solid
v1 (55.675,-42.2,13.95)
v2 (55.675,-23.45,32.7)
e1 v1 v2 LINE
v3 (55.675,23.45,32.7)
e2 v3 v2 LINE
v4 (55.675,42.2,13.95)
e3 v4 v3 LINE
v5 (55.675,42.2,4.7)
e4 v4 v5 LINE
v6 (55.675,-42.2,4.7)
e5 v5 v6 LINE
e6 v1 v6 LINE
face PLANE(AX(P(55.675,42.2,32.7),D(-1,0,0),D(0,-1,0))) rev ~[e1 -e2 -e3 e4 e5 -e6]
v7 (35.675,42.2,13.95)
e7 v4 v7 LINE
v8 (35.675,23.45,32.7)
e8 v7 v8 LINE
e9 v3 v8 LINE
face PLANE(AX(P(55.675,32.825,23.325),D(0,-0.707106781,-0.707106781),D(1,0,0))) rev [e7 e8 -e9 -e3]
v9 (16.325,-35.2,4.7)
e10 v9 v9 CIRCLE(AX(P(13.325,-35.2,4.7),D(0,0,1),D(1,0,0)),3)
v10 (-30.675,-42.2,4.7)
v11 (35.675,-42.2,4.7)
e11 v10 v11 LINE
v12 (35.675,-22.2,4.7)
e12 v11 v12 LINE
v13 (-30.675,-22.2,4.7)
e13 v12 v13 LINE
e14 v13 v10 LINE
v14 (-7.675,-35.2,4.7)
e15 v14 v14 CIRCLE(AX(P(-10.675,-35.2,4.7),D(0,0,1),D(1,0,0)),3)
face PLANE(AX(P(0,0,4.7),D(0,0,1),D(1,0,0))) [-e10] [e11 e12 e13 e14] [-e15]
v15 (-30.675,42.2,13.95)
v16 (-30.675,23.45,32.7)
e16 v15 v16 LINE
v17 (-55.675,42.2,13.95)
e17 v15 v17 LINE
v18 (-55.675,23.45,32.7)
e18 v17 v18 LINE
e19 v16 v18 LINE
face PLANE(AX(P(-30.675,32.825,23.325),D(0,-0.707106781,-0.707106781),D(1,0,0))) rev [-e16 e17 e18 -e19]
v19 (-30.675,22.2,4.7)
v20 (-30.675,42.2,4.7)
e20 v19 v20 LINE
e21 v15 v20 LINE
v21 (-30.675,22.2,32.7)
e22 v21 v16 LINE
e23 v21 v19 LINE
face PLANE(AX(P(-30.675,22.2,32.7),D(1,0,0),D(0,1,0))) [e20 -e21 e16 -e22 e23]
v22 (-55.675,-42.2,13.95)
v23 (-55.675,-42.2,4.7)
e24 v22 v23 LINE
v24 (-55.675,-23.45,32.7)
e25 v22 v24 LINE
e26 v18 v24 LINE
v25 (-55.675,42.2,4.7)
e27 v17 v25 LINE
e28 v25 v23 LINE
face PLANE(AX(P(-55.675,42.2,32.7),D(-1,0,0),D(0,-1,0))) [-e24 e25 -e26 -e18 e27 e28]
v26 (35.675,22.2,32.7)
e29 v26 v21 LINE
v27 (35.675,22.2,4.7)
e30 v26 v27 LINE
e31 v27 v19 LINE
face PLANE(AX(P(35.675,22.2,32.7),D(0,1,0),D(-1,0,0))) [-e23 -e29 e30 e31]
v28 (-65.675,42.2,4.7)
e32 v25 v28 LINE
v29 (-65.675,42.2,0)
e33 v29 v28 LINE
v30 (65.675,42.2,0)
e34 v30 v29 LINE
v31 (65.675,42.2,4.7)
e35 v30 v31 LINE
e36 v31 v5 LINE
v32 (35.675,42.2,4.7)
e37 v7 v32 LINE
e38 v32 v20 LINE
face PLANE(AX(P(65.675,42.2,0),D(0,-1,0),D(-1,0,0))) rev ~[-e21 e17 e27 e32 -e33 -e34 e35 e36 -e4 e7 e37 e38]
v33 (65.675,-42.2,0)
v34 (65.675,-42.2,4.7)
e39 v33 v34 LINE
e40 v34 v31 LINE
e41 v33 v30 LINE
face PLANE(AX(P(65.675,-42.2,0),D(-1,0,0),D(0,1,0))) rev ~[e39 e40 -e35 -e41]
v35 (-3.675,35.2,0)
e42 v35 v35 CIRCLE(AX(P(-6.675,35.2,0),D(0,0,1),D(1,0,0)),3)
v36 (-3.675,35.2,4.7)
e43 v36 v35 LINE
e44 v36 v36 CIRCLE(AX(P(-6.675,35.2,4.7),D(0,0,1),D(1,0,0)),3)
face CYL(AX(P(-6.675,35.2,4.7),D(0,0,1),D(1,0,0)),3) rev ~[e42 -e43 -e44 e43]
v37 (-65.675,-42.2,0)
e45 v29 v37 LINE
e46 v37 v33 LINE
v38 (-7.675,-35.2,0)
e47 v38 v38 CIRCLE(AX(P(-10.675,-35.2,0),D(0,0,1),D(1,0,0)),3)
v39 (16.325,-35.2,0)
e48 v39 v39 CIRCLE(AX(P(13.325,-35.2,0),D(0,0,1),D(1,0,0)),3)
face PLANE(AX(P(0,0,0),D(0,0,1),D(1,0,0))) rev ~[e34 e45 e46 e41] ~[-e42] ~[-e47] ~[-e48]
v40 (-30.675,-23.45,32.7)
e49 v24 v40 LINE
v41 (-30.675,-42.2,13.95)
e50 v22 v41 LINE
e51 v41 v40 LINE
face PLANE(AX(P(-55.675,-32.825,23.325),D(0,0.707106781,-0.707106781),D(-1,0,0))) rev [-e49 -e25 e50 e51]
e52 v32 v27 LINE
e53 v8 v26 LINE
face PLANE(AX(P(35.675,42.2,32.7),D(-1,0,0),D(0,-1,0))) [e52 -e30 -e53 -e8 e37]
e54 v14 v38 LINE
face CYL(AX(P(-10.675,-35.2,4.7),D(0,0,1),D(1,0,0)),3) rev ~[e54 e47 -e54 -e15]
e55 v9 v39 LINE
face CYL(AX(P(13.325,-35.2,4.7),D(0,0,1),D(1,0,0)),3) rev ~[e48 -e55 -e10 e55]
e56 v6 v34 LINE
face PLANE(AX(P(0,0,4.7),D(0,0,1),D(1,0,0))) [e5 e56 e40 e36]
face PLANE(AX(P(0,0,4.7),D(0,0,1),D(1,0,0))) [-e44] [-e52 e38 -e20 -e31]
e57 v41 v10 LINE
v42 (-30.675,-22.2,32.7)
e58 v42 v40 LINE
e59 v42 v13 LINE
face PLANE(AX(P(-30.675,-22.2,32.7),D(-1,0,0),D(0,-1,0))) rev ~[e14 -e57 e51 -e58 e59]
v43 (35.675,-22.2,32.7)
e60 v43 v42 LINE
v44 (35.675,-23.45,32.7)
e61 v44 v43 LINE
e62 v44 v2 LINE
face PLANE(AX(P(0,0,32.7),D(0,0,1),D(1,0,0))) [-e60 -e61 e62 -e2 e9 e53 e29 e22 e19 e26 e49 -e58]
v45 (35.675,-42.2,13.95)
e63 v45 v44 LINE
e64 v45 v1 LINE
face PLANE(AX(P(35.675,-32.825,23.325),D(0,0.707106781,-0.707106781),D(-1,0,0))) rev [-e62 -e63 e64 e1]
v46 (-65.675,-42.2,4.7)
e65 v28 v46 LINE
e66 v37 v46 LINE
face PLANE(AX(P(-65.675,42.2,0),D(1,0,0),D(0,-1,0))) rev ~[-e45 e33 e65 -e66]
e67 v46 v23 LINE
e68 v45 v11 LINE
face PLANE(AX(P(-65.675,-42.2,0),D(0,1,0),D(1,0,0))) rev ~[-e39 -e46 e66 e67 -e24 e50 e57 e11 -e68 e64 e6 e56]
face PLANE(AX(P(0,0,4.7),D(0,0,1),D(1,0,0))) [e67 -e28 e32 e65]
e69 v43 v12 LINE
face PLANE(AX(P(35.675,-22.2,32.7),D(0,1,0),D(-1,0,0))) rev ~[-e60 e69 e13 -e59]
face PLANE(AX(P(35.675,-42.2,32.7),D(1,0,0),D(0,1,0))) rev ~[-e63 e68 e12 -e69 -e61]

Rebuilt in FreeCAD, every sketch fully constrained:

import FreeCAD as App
import Part
import Sketcher


def edges_at(feature, points):
    """Names of the edges that pass closest to the given points."""
    edges = feature.Shape.Edges
    near = lambda p: min(range(len(edges)), key=lambda i: edges[i].distToShape(Part.Vertex(*p))[0])
    return sorted({f"Edge{near(p) + 1}" for p in points})

doc = App.newDocument("Part")
body = doc.addObject("PartDesign::Body", "Body")

sketch1 = body.newObject("Sketcher::SketchObject", "Sketch")
sketch1.AttachmentSupport = (doc.getObject("XY_Plane"), [""])
sketch1.MapMode = "FlatFace"
sketch1.addGeometry([
    Part.LineSegment(App.Vector(-66, 42, 0), App.Vector(-66, -42, 0)),
    Part.LineSegment(App.Vector(-66, -42, 0), App.Vector(66, -42, 0)),
    Part.LineSegment(App.Vector(66, -42, 0), App.Vector(66, 42, 0)),
    Part.LineSegment(App.Vector(66, 42, 0), App.Vector(-66, 42, 0)),
], False)
sketch1.addConstraint([
    Sketcher.Constraint("Coincident", 0, 2, 1, 1),
    Sketcher.Constraint("Coincident", 1, 2, 2, 1),
    Sketcher.Constraint("Coincident", 2, 2, 3, 1),
    Sketcher.Constraint("Coincident", 3, 2, 0, 1),
    Sketcher.Constraint("Vertical", 0),
    Sketcher.Constraint("Horizontal", 1),
    Sketcher.Constraint("Vertical", 2),
    Sketcher.Constraint("Horizontal", 3),
    Sketcher.Constraint("Symmetric", 0, 2, 2, 2, -1, 1),
    Sketcher.Constraint("DistanceY", 0, 2, 0, 1, 84.4),
    Sketcher.Constraint("DistanceX", 1, 1, 1, 2, 131.35),
])
pad1 = body.newObject("PartDesign::Pad", "Pad")
pad1.Profile = sketch1
pad1.Length = 32.7

sketch2 = body.newObject("Sketcher::SketchObject", "Sketch001")
sketch2.AttachmentSupport = (doc.getObject("XY_Plane"), [""])
sketch2.MapMode = "FlatFace"
sketch2.AttachmentOffset = App.Placement(App.Vector(0, 0, 32.7), App.Rotation())
sketch2.addGeometry([
    Part.LineSegment(App.Vector(66, -42, 0), App.Vector(66, 42, 0)),
    Part.LineSegment(App.Vector(66, 42, 0), App.Vector(56, 42, 0)),
    Part.LineSegment(App.Vector(56, 42, 0), App.Vector(56, -42, 0)),
    Part.LineSegment(App.Vector(56, -42, 0), App.Vector(66, -42, 0)),
    Part.LineSegment(App.Vector(36, 22, 0), App.Vector(36, 42, 0)),
    Part.LineSegment(App.Vector(36, 42, 0), App.Vector(-31, 42, 0)),
    Part.LineSegment(App.Vector(-31, 42, 0), App.Vector(-31, 22, 0)),
    Part.LineSegment(App.Vector(-31, 22, 0), App.Vector(36, 22, 0)),
    Part.LineSegment(App.Vector(-31, -42, 0), App.Vector(36, -42, 0)),
    Part.LineSegment(App.Vector(36, -42, 0), App.Vector(36, -22, 0)),
    Part.LineSegment(App.Vector(36, -22, 0), App.Vector(-31, -22, 0)),
    Part.LineSegment(App.Vector(-31, -22, 0), App.Vector(-31, -42, 0)),
    Part.LineSegment(App.Vector(-56, -42, 0), App.Vector(-56, 42, 0)),
    Part.LineSegment(App.Vector(-56, 42, 0), App.Vector(-66, 42, 0)),
    Part.LineSegment(App.Vector(-66, 42, 0), App.Vector(-66, -42, 0)),
    Part.LineSegment(App.Vector(-66, -42, 0), App.Vector(-56, -42, 0)),
], False)
sketch2.addConstraint([
    Sketcher.Constraint("Coincident", 0, 2, 1, 1),
    Sketcher.Constraint("Coincident", 1, 2, 2, 1),
    Sketcher.Constraint("Coincident", 2, 2, 3, 1),
    Sketcher.Constraint("Coincident", 3, 2, 0, 1),
    Sketcher.Constraint("Coincident", 4, 2, 5, 1),
    Sketcher.Constraint("Coincident", 5, 2, 6, 1),
    Sketcher.Constraint("Coincident", 6, 2, 7, 1),
    Sketcher.Constraint("Coincident", 7, 2, 4, 1),
    Sketcher.Constraint("Coincident", 8, 2, 9, 1),
    Sketcher.Constraint("Coincident", 9, 2, 10, 1),
    Sketcher.Constraint("Coincident", 10, 2, 11, 1),
    Sketcher.Constraint("Coincident", 11, 2, 8, 1),
    Sketcher.Constraint("Coincident", 12, 2, 13, 1),
    Sketcher.Constraint("Coincident", 13, 2, 14, 1),
    Sketcher.Constraint("Coincident", 14, 2, 15, 1),
    Sketcher.Constraint("Coincident", 15, 2, 12, 1),
    Sketcher.Constraint("Vertical", 0),
    Sketcher.Constraint("Horizontal", 1),
    Sketcher.Constraint("Vertical", 2),
    Sketcher.Constraint("Horizontal", 3),
    Sketcher.Constraint("Vertical", 4),
    Sketcher.Constraint("Horizontal", 5),
    Sketcher.Constraint("Vertical", 6),
    Sketcher.Constraint("Horizontal", 7),
    Sketcher.Constraint("Horizontal", 8),
    Sketcher.Constraint("Vertical", 9),
    Sketcher.Constraint("Horizontal", 10),
    Sketcher.Constraint("Vertical", 11),
    Sketcher.Constraint("Vertical", 12),
    Sketcher.Constraint("Horizontal", 13),
    Sketcher.Constraint("Vertical", 14),
    Sketcher.Constraint("Horizontal", 15),
    Sketcher.Constraint("Symmetric", 2, 2, 12, 2, -1, 1),
    Sketcher.Constraint("Symmetric", 0, 2, 14, 2, -1, 1),
    Sketcher.Constraint("Symmetric", 4, 2, 8, 2, -1),
    Sketcher.Constraint("Symmetric", 6, 2, 10, 2, -1),
    Sketcher.Constraint("Horizontal", 1, 2, 4, 2),
    Sketcher.Constraint("Horizontal", 3, 2, 8, 2),
    Sketcher.Constraint("DistanceX", 1, 2, 1, 1, 10.0),
    Sketcher.Constraint("DistanceY", 4, 1, 4, 2, 20.0),
    Sketcher.Constraint("DistanceX", 4, 2, 1, 2, 20.0),
    Sketcher.Constraint("DistanceX", 13, 2, 5, 2, 35.0),
    Sketcher.Constraint("DistanceY", 0, 1, 0, 2, 84.4),
    Sketcher.Constraint("DistanceX", 5, 2, 5, 1, 66.35),
])
pocket1 = body.newObject("PartDesign::Pocket", "Pocket")
pocket1.Profile = sketch2
pocket1.Length = 28
doc.recompute()

chamfer = body.newObject("PartDesign::Chamfer", "Chamfer")
chamfer.Base = (pocket1, edges_at(pocket1, [
    (-43.175, -42.2, 32.7),
    (45.675, -42.2, 32.7),
    (45.675, 42.2, 32.7),
    (-43.175, 42.2, 32.7),
]))
chamfer.Size = 18.75

sketch3 = body.newObject("Sketcher::SketchObject", "Sketch002")
sketch3.AttachmentSupport = (doc.getObject("XY_Plane"), [""])
sketch3.MapMode = "FlatFace"
sketch3.AttachmentOffset = App.Placement(App.Vector(0, 0, 4.7), App.Rotation())
sketch3.addGeometry([
    Part.Circle(App.Vector(-6.7, 35.2, 0), App.Vector(0, 0, 1), 3),
    Part.Circle(App.Vector(-10.7, -35.2, 0), App.Vector(0, 0, 1), 3),
    Part.Circle(App.Vector(13.3, -35.2, 0), App.Vector(0, 0, 1), 3),
], False)
sketch3.addConstraint([
    Sketcher.Constraint("Equal", 0, 1),
    Sketcher.Constraint("Equal", 1, 2),
    Sketcher.Constraint("Horizontal", 1, 3, 2, 3),
    Sketcher.Constraint("Diameter", 0, 6.0),
    Sketcher.Constraint("DistanceX", 1, 3, 2, 3, 24.0),
    Sketcher.Constraint("DistanceX", 0, 3, 2, 3, 20.0),
    Sketcher.Constraint("DistanceY", 1, 3, 0, 3, 70.4),
    Sketcher.Constraint("DistanceY", -1, 1, 0, 3, 35.2),
    Sketcher.Constraint("DistanceX", 0, 3, -1, 1, 6.675),
])
pocket2 = body.newObject("PartDesign::Pocket", "Pocket001")
pocket2.Profile = sketch3
pocket2.Length = 28

doc.recompute()
